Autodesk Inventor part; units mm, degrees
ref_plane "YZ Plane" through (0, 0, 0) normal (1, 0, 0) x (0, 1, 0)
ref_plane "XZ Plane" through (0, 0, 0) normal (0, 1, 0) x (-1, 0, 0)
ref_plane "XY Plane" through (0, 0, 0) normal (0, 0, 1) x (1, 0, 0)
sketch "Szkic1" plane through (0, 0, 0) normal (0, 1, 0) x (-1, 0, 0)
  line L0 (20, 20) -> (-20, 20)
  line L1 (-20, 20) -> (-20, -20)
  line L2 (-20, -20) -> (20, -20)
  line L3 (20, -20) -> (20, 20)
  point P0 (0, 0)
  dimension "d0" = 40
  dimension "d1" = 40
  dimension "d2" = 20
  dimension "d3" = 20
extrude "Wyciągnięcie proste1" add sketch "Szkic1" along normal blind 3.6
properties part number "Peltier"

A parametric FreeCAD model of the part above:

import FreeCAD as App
import Part
import Sketcher
from FreeCAD import Vector


def add_polygon(sketch, points):
    """Adds a closed chain of lines whose ends are joined by coincident constraints."""
    first, n = sketch.GeometryCount, len(points)
    for a, b in zip(points, points[1:] + points[:1]):
        sketch.addGeometry(Part.LineSegment(App.Vector(*a, 0), App.Vector(*b, 0)), False)
    for i in range(n):
        sketch.addConstraint(Sketcher.Constraint("Coincident", first + i, 2, first + (i + 1) % n, 1))

doc = App.newDocument("Part")
body = doc.addObject("PartDesign::Body", "Body")

# Sketch on XZ plane
sketch1 = body.newObject("Sketcher::SketchObject", "Sketch")
sketch1.AttachmentSupport = (doc.getObject("XZ_Plane"), [""])
sketch1.MapMode = "FlatFace"
add_polygon(sketch1, [(-20, -20), (-20, 20), (20, 20), (20, -20)])  # lines 0-3
sketch1.addConstraint([
    Sketcher.Constraint("Vertical", 0),
    Sketcher.Constraint("Horizontal", 1),
    Sketcher.Constraint("Vertical", 2),
    Sketcher.Constraint("Horizontal", 3),
    Sketcher.Constraint("Symmetric", 0, 2, 2, 2, -1, 1),
    Sketcher.Constraint("Equal", 3, 0),
    Sketcher.Constraint("DistanceX", 1, 1, 1, 2, 40.0),
])
pad1 = body.newObject("PartDesign::Pad", "Pad")
pad1.Profile = sketch1
pad1.Length = 3.6
pad1.Reversed = True

doc.recompute()
